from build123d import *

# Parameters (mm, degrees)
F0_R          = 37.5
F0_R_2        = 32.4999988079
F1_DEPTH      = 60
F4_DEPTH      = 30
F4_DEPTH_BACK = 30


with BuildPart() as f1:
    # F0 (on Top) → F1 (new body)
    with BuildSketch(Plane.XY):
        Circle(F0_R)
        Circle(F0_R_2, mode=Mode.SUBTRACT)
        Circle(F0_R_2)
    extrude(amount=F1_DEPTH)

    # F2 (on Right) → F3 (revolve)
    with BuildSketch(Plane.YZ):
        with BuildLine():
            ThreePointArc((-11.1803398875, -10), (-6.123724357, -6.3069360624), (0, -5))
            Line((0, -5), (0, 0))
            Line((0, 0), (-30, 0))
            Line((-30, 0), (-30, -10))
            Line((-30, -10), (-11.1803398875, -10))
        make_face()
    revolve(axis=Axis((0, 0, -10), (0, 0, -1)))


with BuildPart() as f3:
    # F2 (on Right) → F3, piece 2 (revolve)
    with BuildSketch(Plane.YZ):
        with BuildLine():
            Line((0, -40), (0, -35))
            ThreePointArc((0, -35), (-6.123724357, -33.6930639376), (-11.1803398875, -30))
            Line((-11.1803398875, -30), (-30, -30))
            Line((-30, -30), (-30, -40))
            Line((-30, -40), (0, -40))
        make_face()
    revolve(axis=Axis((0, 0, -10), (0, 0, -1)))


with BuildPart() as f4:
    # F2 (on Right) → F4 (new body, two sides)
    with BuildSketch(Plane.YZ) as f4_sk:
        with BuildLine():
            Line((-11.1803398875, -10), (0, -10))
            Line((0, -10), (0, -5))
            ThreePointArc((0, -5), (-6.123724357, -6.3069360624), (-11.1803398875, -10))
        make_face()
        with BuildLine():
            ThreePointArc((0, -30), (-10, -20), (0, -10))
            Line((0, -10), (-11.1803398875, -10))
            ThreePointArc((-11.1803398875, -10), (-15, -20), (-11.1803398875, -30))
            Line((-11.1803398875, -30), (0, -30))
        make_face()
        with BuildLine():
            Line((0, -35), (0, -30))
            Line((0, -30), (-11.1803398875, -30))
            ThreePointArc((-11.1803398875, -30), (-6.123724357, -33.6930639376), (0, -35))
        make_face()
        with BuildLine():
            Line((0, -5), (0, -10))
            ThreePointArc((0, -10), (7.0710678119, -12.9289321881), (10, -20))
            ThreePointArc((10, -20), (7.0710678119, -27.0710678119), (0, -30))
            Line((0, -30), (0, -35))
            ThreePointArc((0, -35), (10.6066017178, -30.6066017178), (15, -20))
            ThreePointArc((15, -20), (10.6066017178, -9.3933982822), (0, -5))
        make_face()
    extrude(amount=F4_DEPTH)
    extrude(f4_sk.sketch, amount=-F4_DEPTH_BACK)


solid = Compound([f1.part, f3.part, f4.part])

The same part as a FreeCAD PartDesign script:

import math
import FreeCAD as App
import Part
import Sketcher

doc = App.newDocument("Part")
body = doc.addObject("PartDesign::Body", "Body")

sketch1 = body.newObject("Sketcher::SketchObject", "Sketch")
sketch1.AttachmentSupport = (doc.getObject("XY_Plane"), [""])
sketch1.MapMode = "FlatFace"
sketch1.addGeometry(Part.Circle(App.Vector(0, 0, 0), App.Vector(0, 0, 1), 38), False)
sketch1.addConstraint([
    Sketcher.Constraint("Coincident", 0, 3, -1, 1),
    Sketcher.Constraint("Diameter", 0, 75.0),
])
pad1 = body.newObject("PartDesign::Pad", "Pad")
pad1.Profile = sketch1
pad1.Length = 60

sketch2 = body.newObject("Sketcher::SketchObject", "Sketch001")
sketch2.AttachmentSupport = (doc.getObject("YZ_Plane"), [""])
sketch2.MapMode = "FlatFace"
sketch2.addGeometry([
    Part.ArcOfCircle(Part.Circle(App.Vector(0, -20, 0), App.Vector(0, 0, 1), 15), math.radians(90), math.radians(138)),
    Part.LineSegment(App.Vector(0, -5, 0), App.Vector(0, 0, 0)),
    Part.LineSegment(App.Vector(0, 0, 0), App.Vector(-30, 0, 0)),
    Part.LineSegment(App.Vector(-30, 0, 0), App.Vector(-30, -10, 0)),
    Part.LineSegment(App.Vector(-30, -10, 0), App.Vector(-11, -10, 0)),
], False)
sketch2.addConstraint([
    Sketcher.Constraint("Coincident", 0, 1, 1, 1),
    Sketcher.Constraint("Coincident", 1, 2, 2, 1),
    Sketcher.Constraint("Coincident", 2, 2, 3, 1),
    Sketcher.Constraint("Coincident", 3, 2, 4, 1),
    Sketcher.Constraint("Coincident", 4, 2, 0, 2),
    Sketcher.Constraint("Vertical", 1),
    Sketcher.Constraint("Horizontal", 2),
    Sketcher.Constraint("Vertical", 3),
    Sketcher.Constraint("Horizontal", 4),
    Sketcher.Constraint("Coincident", 1, 2, -1, 1),
    Sketcher.Constraint("PointOnObject", 0, 3, -2),
    Sketcher.Constraint("Radius", 0, 15.0),
    Sketcher.Constraint("DistanceX", 2, 2, 2, 1, 30.0),
    Sketcher.Constraint("DistanceY", 1, 1, 1, 2, 5.0),
    Sketcher.Constraint("DistanceY", 3, 2, 3, 1, 10.0),
])
revolution = body.newObject("PartDesign::Revolution", "Revolution")
revolution.Profile = sketch2
revolution.ReferenceAxis = (sketch2, ["V_Axis"])
revolution.Angle = 360
body2 = doc.addObject("PartDesign::Body", "Body001")

sketch3 = body2.newObject("Sketcher::SketchObject", "Sketch002")
sketch3.AttachmentSupport = (doc.getObject("YZ_Plane001"), [""])
sketch3.MapMode = "FlatFace"
sketch3.addGeometry([
    Part.LineSegment(App.Vector(0, -40, 0), App.Vector(0, -35, 0)),
    Part.ArcOfCircle(Part.Circle(App.Vector(0, -20, 0), App.Vector(0, 0, 1), 15), math.radians(-138), math.radians(-90)),
    Part.LineSegment(App.Vector(-11, -30, 0), App.Vector(-30, -30, 0)),
    Part.LineSegment(App.Vector(-30, -30, 0), App.Vector(-30, -40, 0)),
    Part.LineSegment(App.Vector(-30, -40, 0), App.Vector(0, -40, 0)),
], False)
sketch3.addConstraint([
    Sketcher.Constraint("Coincident", 0, 2, 1, 2),
    Sketcher.Constraint("Coincident", 1, 1, 2, 1),
    Sketcher.Constraint("Coincident", 2, 2, 3, 1),
    Sketcher.Constraint("Coincident", 3, 2, 4, 1),
    Sketcher.Constraint("Coincident", 4, 2, 0, 1),
    Sketcher.Constraint("Vertical", 0),
    Sketcher.Constraint("Horizontal", 2),
    Sketcher.Constraint("Vertical", 3),
    Sketcher.Constraint("Horizontal", 4),
    Sketcher.Constraint("PointOnObject", 1, 3, -2),
    Sketcher.Constraint("PointOnObject", 0, 2, -2),
    Sketcher.Constraint("Radius", 1, 15.0),
    Sketcher.Constraint("DistanceX", 4, 1, 4, 2, 30.0),
    Sketcher.Constraint("DistanceY", 0, 1, 0, 2, 5.0),
    Sketcher.Constraint("DistanceY", 3, 2, 3, 1, 10.0),
    Sketcher.Constraint("DistanceY", 1, 3, -1, 1, 20.0),
])
revolution2 = body2.newObject("PartDesign::Revolution", "Revolution001")
revolution2.Profile = sketch3
revolution2.ReferenceAxis = (sketch3, ["V_Axis"])
revolution2.Angle = 360
body3 = doc.addObject("PartDesign::Body", "Body002")

sketch4 = body3.newObject("Sketcher::SketchObject", "Sketch003")
sketch4.AttachmentSupport = (doc.getObject("YZ_Plane002"), [""])
sketch4.MapMode = "FlatFace"
sketch4.addGeometry([
    Part.ArcOfCircle(Part.Circle(App.Vector(0, -20, 0), App.Vector(0, 0, 1), 15), math.radians(90), math.radians(138)),
    Part.ArcOfCircle(Part.Circle(App.Vector(0, -20, 0), App.Vector(0, 0, 1), 15), math.radians(138), math.radians(222)),
    Part.ArcOfCircle(Part.Circle(App.Vector(0, -20, 0), App.Vector(0, 0, 1), 15), math.radians(-138), math.radians(-90)),
    Part.ArcOfCircle(Part.Circle(App.Vector(0, -20, 0), App.Vector(0, 0, 1), 15), math.radians(-90), math.radians(90)),
    Part.ArcOfCircle(Part.Circle(App.Vector(0, -20, 0), App.Vector(0, 0, 1), 10), math.radians(90), math.radians(270)),
    Part.ArcOfCircle(Part.Circle(App.Vector(0, -20, 0), App.Vector(0, 0, 1), 10), math.radians(0), math.radians(90)),
    Part.ArcOfCircle(Part.Circle(App.Vector(0, -20, 0), App.Vector(0, 0, 1), 10), math.radians(-90), math.radians(0)),
], False)
sketch4.addConstraint([
    Sketcher.Constraint("Tangent", 0, 2, 1, 1),
    Sketcher.Constraint("Tangent", 1, 2, 2, 1),
    Sketcher.Constraint("Tangent", 2, 2, 3, 1),
    Sketcher.Constraint("Tangent", 3, 2, 0, 1),
    Sketcher.Constraint("Tangent", 4, 1, 5, 2),
    Sketcher.Constraint("Tangent", 5, 1, 6, 2),
    Sketcher.Constraint("Tangent", 6, 1, 4, 2),
    Sketcher.Constraint("Coincident", 4, 3, 0, 3),
    Sketcher.Constraint("Equal", 0, 1),
    Sketcher.Constraint("PointOnObject", 0, 3, -2),
    Sketcher.Constraint("PointOnObject", 2, 2, -2),
    Sketcher.Constraint("PointOnObject", 3, 2, -2),
    Sketcher.Constraint("PointOnObject", 4, 1, -2),
    Sketcher.Constraint("PointOnObject", 6, 1, -2),
    Sketcher.Constraint("Horizontal", 0, 2, 4, 1),
    Sketcher.Constraint("Horizontal", 6, 3, 5, 1),
    Sketcher.Constraint("Horizontal", 1, 2, 6, 1),
    Sketcher.Constraint("Radius", 0, 15.0),
    Sketcher.Constraint("Radius", 4, 10.0),
    Sketcher.Constraint("DistanceY", 0, 3, -1, 1, 20.0),
])
pad2 = body3.newObject("PartDesign::Pad", "Pad001")
pad2.Profile = sketch4
pad2.Type = "TwoLengths"
pad2.Length = 30
pad2.Length2 = 30

doc.recompute()
